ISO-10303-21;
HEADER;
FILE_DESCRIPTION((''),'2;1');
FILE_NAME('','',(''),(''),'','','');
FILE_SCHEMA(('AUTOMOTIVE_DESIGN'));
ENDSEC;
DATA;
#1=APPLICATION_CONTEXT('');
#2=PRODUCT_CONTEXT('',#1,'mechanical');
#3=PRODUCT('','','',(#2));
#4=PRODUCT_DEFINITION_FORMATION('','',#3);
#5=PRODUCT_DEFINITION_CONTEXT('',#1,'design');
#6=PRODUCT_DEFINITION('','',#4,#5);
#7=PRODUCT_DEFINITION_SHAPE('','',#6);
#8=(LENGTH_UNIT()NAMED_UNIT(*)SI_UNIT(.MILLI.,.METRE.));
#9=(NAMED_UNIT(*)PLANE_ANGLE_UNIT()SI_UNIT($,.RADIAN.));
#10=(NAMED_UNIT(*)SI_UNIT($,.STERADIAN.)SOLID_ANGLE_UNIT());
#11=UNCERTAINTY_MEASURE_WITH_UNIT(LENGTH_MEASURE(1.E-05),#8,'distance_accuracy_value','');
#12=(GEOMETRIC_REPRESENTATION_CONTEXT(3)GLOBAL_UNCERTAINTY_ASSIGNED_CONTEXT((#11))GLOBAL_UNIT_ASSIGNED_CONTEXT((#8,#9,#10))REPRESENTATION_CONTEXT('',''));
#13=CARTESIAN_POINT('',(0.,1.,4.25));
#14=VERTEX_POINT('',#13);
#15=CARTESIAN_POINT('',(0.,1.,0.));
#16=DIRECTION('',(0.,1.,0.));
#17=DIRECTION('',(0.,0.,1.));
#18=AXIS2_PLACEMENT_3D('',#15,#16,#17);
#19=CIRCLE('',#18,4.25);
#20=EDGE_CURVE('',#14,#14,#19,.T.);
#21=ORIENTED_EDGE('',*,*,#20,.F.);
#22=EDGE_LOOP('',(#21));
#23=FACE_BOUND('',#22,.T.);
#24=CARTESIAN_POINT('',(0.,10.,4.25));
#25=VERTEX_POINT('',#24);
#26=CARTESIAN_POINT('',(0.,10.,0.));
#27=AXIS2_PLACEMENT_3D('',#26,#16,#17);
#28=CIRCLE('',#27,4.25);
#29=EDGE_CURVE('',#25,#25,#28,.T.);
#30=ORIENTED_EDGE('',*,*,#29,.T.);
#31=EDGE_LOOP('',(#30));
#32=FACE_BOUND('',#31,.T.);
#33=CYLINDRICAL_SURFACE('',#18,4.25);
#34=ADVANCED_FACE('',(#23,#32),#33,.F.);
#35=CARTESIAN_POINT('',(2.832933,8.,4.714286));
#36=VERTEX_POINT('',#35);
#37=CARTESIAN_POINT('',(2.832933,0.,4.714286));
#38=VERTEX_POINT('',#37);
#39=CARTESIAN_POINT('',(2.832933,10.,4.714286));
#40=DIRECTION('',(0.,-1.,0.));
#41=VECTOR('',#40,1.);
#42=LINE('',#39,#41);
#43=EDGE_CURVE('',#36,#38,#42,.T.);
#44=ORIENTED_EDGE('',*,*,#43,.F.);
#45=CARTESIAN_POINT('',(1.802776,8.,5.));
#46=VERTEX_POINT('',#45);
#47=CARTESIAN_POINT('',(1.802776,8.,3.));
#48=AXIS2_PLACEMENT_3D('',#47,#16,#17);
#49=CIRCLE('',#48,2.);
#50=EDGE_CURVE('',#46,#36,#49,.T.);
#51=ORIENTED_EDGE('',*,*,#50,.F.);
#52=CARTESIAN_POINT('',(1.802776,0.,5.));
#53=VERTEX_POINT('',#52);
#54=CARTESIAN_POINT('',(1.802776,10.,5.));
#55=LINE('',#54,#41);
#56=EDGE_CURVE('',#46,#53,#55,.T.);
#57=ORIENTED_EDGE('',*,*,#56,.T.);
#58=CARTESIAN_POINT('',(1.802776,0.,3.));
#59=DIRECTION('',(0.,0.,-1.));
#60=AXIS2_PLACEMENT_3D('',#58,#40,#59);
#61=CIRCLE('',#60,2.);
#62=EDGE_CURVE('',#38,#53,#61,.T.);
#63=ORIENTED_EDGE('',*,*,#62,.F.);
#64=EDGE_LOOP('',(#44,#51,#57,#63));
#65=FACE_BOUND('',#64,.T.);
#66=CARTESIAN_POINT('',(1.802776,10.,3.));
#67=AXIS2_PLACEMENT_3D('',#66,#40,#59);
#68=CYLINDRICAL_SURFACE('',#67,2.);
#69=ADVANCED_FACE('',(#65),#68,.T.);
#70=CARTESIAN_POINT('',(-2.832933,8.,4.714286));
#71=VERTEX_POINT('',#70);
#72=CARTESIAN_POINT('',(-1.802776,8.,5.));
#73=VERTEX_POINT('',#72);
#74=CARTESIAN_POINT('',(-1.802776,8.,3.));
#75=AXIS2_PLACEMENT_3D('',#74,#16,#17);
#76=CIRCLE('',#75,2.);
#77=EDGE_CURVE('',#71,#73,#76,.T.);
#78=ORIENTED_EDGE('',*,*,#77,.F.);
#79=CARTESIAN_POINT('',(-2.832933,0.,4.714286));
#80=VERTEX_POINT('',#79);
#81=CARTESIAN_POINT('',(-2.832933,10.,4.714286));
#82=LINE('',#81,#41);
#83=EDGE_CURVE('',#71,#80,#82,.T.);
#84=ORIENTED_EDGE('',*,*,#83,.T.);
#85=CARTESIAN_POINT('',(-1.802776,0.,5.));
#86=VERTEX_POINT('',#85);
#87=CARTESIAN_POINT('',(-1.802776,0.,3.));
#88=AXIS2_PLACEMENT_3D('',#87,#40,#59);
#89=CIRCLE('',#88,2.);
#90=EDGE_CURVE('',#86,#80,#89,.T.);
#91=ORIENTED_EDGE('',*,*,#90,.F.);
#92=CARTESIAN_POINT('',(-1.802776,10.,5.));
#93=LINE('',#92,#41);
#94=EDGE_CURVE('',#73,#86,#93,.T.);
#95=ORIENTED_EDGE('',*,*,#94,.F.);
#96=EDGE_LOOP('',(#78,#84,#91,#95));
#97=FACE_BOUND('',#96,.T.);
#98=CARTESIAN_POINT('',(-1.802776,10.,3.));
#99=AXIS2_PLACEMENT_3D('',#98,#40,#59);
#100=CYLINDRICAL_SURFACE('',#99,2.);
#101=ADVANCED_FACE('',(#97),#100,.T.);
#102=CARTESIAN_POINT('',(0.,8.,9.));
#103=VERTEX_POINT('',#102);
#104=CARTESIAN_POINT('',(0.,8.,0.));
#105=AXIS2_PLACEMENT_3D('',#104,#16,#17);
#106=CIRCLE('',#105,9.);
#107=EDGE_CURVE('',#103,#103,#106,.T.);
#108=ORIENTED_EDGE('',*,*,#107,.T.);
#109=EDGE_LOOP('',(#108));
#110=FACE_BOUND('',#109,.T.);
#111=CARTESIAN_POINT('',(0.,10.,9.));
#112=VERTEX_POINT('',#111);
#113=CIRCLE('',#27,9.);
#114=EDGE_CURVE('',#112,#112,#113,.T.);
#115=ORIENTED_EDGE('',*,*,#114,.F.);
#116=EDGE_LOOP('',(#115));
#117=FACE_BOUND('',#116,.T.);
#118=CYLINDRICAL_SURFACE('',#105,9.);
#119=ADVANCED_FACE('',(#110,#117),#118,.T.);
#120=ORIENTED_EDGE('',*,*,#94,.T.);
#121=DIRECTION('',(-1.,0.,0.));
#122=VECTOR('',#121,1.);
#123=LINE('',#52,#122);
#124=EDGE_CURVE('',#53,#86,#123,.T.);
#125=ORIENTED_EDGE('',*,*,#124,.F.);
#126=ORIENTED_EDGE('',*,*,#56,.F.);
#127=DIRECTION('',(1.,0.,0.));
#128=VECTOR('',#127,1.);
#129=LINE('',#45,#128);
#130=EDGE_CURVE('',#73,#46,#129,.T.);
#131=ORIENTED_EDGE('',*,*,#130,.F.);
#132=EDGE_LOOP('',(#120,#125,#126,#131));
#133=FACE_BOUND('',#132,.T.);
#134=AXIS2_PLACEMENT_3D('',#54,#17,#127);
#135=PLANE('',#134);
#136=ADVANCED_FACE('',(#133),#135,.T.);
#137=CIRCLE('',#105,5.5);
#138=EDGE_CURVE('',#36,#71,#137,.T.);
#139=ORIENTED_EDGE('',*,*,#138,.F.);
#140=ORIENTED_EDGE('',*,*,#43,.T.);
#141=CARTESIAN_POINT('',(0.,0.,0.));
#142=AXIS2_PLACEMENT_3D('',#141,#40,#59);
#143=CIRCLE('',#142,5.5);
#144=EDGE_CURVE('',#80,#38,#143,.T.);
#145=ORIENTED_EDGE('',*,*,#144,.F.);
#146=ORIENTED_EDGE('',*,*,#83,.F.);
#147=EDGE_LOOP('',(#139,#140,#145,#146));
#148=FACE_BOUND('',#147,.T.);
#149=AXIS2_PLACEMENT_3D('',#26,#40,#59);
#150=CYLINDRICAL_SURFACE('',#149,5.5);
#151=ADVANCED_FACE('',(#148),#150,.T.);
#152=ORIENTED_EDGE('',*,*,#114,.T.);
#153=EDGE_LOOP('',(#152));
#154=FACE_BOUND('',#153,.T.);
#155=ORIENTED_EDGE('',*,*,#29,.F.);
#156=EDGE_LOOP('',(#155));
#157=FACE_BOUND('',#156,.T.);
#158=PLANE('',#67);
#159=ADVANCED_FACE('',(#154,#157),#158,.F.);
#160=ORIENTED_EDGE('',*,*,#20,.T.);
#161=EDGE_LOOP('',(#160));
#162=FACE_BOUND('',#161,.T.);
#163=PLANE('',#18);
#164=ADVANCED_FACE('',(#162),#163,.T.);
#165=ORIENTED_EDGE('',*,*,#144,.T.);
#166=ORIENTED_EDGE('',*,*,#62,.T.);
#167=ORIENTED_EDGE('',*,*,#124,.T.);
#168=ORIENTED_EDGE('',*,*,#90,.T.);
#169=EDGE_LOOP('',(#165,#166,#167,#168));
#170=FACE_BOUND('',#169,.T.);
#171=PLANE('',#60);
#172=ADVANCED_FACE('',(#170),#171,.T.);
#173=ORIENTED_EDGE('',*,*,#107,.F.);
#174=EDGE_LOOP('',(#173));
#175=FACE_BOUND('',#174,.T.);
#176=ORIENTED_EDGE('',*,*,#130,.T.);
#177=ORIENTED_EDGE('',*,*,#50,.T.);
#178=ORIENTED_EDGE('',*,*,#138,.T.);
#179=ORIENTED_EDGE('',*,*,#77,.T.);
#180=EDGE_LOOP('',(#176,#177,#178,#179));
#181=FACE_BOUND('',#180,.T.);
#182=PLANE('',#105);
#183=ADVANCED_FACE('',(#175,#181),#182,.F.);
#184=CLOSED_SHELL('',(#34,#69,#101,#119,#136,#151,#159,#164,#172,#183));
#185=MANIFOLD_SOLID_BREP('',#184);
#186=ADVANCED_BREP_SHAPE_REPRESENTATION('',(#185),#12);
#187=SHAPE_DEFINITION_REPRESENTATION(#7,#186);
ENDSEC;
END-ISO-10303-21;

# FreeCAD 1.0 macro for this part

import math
import FreeCAD as App
import Part
import Sketcher
from FreeCAD import Vector

doc = App.newDocument("Part")
params = doc.addObject("Spreadsheet::Sheet", "Params")
for row, (alias, value) in enumerate([
    ("sketch1_radius", "2 mm"),
    ("sketch1_radius2", "5.5 mm"),
    ("pad1_length", "10 mm"),
    ("sketch2_diameter", "8.5 mm"),
    ("pocket1_length", "9 mm"),
    ("sketch3_diameter", "18 mm"),
    ("sketch3_radius", "2 mm"),
    ("sketch3_radius2", "5.5 mm"),
    ("pad2_length", "2 mm"),
], start=1):
    params.set(f"A{row}", alias)
    params.set(f"B{row}", "=" + value)
    params.setAlias(f"B{row}", alias)

body = doc.addObject("PartDesign::Body", "Body")

# Sketch on XZ plane
sketch1 = doc.addObject("Sketcher::SketchObject", "Sketch")
body.addObject(sketch1)
sketch1.AttachmentSupport = (doc.XZ_Plane, [""])
sketch1.MapMode = "FlatFace"
sketch1.addGeometry(Part.LineSegment(Vector(-1.8, 5, 0), Vector(1.8, 5, 0)), False)
sketch1.addGeometry(Part.ArcOfCircle(Part.Circle(Vector(1.8, 3, 0), Vector(0, 0, 1), 2), math.radians(59), math.radians(90)), False)
sketch1.addGeometry(Part.ArcOfCircle(Part.Circle(Vector(0, 0, 0), Vector(0, 0, 1), 5.5), math.radians(121), math.radians(419)), False)
sketch1.addGeometry(Part.ArcOfCircle(Part.Circle(Vector(-1.8, 3, 0), Vector(0, 0, 1), 2), math.radians(90), math.radians(121)), False)
sketch1.addConstraint(Sketcher.Constraint("Tangent", 0, 2, 1, 2))
sketch1.addConstraint(Sketcher.Constraint("Tangent", 1, 1, 2, 2))
sketch1.addConstraint(Sketcher.Constraint("Tangent", 2, 1, 3, 2))
sketch1.addConstraint(Sketcher.Constraint("Tangent", 3, 1, 0, 1))
sketch1.addConstraint(Sketcher.Constraint("Horizontal", 0))
sketch1.addConstraint(Sketcher.Constraint("Coincident", 2, 3, -1, 1))
sketch1.addConstraint(Sketcher.Constraint("Equal", 1, 3))
sketch1.addConstraint(Sketcher.Constraint("Radius", 1, 2.0))
sketch1.addConstraint(Sketcher.Constraint("Radius", 2, 5.5))
sketch1.addConstraint(Sketcher.Constraint("DistanceY", -1, 1, 1, 3, 3.0))
sketch1.setExpression("Constraints[7]", "Params.sketch1_radius")
sketch1.setExpression("Constraints[8]", "Params.sketch1_radius2")
pad1 = doc.addObject("PartDesign::Pad", "Pad")
body.addObject(pad1)
pad1.Profile = sketch1
pad1.setExpression("Length", "Params.pad1_length")
pad1.Reversed = True

# Sketch on XZ plane
sketch2 = doc.addObject("Sketcher::SketchObject", "Sketch001")
body.addObject(sketch2)
sketch2.AttachmentSupport = (doc.XZ_Plane, [""])
sketch2.MapMode = "FlatFace"
sketch2.AttachmentOffset = App.Placement(Vector(0, 0, -10), App.Rotation())
sketch2.addGeometry(Part.Circle(Vector(0, 0, 0), Vector(0, 0, 1), 4.2), False)
sketch2.addConstraint(Sketcher.Constraint("Coincident", 0, 3, -1, 1))
sketch2.addConstraint(Sketcher.Constraint("Diameter", 0, 8.5))
sketch2.setExpression("Constraints[1]", "Params.sketch2_diameter")
pocket1 = doc.addObject("PartDesign::Pocket", "Pocket")
body.addObject(pocket1)
pocket1.Profile = sketch2
pocket1.setExpression("Length", "Params.pocket1_length")
pocket1.Reversed = True

# Sketch on XZ plane
sketch3 = doc.addObject("Sketcher::SketchObject", "Sketch002")
body.addObject(sketch3)
sketch3.AttachmentSupport = (doc.XZ_Plane, [""])
sketch3.MapMode = "FlatFace"
sketch3.AttachmentOffset = App.Placement(Vector(0, 0, -8), App.Rotation())
sketch3.addGeometry(Part.Circle(Vector(0, 0, 0), Vector(0, 0, 1), 9), False)
sketch3.addGeometry(Part.ArcOfCircle(Part.Circle(Vector(1.8, 3, 0), Vector(0, 0, 1), 2), math.radians(59), math.radians(90)), False)
sketch3.addGeometry(Part.LineSegment(Vector(1.8, 5, 0), Vector(-1.8, 5, 0)), False)
sketch3.addGeometry(Part.ArcOfCircle(Part.Circle(Vector(-1.8, 3, 0), Vector(0, 0, 1), 2), math.radians(90), math.radians(121)), False)
sketch3.addGeometry(Part.ArcOfCircle(Part.Circle(Vector(0, 0, 0), Vector(0, 0, 1), 5.5), math.radians(121), math.radians(419)), False)
sketch3.addConstraint(Sketcher.Constraint("Tangent", 1, 2, 2, 1))
sketch3.addConstraint(Sketcher.Constraint("Tangent", 2, 2, 3, 1))
sketch3.addConstraint(Sketcher.Constraint("Tangent", 3, 2, 4, 1))
sketch3.addConstraint(Sketcher.Constraint("Tangent", 4, 2, 1, 1))
sketch3.addConstraint(Sketcher.Constraint("Horizontal", 2))
sketch3.addConstraint(Sketcher.Constraint("Coincident", 0, 3, -1, 1))
sketch3.addConstraint(Sketcher.Constraint("Coincident", 4, 3, -1, 1))
sketch3.addConstraint(Sketcher.Constraint("Equal", 1, 3))
sketch3.addConstraint(Sketcher.Constraint("Diameter", 0, 18.0))
sketch3.addConstraint(Sketcher.Constraint("Radius", 1, 2.0))
sketch3.addConstraint(Sketcher.Constraint("Radius", 4, 5.5))
sketch3.addConstraint(Sketcher.Constraint("DistanceY", -1, 1, 1, 3, 3.0))
sketch3.setExpression("Constraints[8]", "Params.sketch3_diameter")
sketch3.setExpression("Constraints[9]", "Params.sketch3_radius")
sketch3.setExpression("Constraints[10]", "Params.sketch3_radius2")
pad2 = doc.addObject("PartDesign::Pad", "Pad001")
body.addObject(pad2)
pad2.Profile = sketch3
pad2.setExpression("Length", "Params.pad2_length")
pad2.Reversed = True

doc.recompute()
